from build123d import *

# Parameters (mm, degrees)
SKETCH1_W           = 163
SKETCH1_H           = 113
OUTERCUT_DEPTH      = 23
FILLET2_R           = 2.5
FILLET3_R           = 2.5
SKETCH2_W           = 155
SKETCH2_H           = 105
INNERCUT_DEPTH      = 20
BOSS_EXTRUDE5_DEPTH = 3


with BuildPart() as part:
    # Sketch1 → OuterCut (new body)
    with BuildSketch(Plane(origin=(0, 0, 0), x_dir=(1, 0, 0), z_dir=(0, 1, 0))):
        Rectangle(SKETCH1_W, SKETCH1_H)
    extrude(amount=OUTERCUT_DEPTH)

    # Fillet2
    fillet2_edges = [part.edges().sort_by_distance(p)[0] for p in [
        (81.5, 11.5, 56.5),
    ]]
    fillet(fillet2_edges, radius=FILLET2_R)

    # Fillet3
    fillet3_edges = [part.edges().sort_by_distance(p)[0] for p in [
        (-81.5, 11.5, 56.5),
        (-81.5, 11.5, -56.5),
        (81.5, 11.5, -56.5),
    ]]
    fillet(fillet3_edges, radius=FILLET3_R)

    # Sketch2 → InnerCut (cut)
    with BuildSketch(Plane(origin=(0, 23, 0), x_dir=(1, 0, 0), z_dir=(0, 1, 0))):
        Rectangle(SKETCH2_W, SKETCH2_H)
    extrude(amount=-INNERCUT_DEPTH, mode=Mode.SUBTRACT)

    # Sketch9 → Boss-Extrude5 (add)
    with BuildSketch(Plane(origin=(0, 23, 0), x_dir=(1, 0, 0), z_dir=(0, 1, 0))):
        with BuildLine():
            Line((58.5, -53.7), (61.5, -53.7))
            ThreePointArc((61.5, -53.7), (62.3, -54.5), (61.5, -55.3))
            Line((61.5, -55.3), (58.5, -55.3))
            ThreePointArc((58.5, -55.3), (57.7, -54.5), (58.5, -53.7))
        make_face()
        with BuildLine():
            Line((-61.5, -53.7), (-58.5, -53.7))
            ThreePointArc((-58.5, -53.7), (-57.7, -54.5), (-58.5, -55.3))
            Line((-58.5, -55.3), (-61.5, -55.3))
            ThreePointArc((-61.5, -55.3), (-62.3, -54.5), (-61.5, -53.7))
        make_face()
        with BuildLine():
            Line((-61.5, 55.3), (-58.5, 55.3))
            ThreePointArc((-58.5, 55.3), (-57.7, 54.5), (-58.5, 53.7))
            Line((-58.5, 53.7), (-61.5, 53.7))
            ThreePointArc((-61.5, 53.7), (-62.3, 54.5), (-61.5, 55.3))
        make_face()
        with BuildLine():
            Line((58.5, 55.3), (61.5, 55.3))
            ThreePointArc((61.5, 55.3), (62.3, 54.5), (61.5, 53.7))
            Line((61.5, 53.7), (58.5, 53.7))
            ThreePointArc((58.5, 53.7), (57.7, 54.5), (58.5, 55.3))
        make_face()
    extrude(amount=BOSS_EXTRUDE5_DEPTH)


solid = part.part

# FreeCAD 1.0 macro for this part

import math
import FreeCAD as App
import Part
import Sketcher

V = App.Vector


def edges_at(feature, points):
    """Names of the edges that pass closest to the given points."""
    edges = feature.Shape.Edges
    near = lambda p: min(range(len(edges)), key=lambda i: edges[i].distToShape(Part.Vertex(*p))[0])
    return sorted({f"Edge{near(p) + 1}" for p in points})


def add_polygon(sketch, points):
    """Adds a closed chain of lines whose ends are joined by coincident constraints."""
    first, n = sketch.GeometryCount, len(points)
    for a, b in zip(points, points[1:] + points[:1]):
        sketch.addGeometry(Part.LineSegment(App.Vector(*a, 0), App.Vector(*b, 0)), False)
    for i in range(n):
        sketch.addConstraint(Sketcher.Constraint("Coincident", first + i, 2, first + (i + 1) % n, 1))

doc = App.newDocument("Part")
body = doc.addObject("PartDesign::Body", "Body")

# Sketch on XZ plane
sketch1 = body.newObject("Sketcher::SketchObject", "Sketch")
sketch1.AttachmentSupport = (doc.getObject("XZ_Plane"), [""])
sketch1.MapMode = "FlatFace"
add_polygon(sketch1, [(-82, -56), (-82, 56), (82, 56), (82, -56)])  # lines 0-3
sketch1.addConstraint(Sketcher.Constraint("Vertical", 0))
sketch1.addConstraint(Sketcher.Constraint("Horizontal", 1))
sketch1.addConstraint(Sketcher.Constraint("Vertical", 2))
sketch1.addConstraint(Sketcher.Constraint("Horizontal", 3))
sketch1.addConstraint(Sketcher.Constraint("Symmetric", 0, 2, 2, 2, -1, 1))
sketch1.addConstraint(Sketcher.Constraint("DistanceX", 1, 1, 1, 2, 163.0))
sketch1.addConstraint(Sketcher.Constraint("DistanceY", 0, 1, 0, 2, 113.0))
pad1 = body.newObject("PartDesign::Pad", "Pad")
pad1.Profile = sketch1
pad1.Length = 23
pad1.Reversed = True
doc.recompute()

fillet = body.newObject("PartDesign::Fillet", "Fillet")
fillet.Base = (pad1, edges_at(pad1, [(81.5, 11.5, 56.5)]))
fillet.Radius = 2.5
doc.recompute()

fillet2 = body.newObject("PartDesign::Fillet", "Fillet001")
fillet2.Base = (fillet, edges_at(fillet, [(-81.5, 11.5, 56.5), (-81.5, 11.5, -56.5), (81.5, 11.5, -56.5)]))
fillet2.Radius = 2.5

# Sketch on XZ plane
sketch2 = body.newObject("Sketcher::SketchObject", "Sketch001")
sketch2.AttachmentSupport = (doc.getObject("XZ_Plane"), [""])
sketch2.MapMode = "FlatFace"
sketch2.AttachmentOffset = App.Placement(V(0, 0, -23), App.Rotation())
add_polygon(sketch2, [(-78, -52), (-78, 52), (78, 52), (78, -52)])  # lines 0-3
sketch2.addConstraint(Sketcher.Constraint("Vertical", 0))
sketch2.addConstraint(Sketcher.Constraint("Horizontal", 1))
sketch2.addConstraint(Sketcher.Constraint("Vertical", 2))
sketch2.addConstraint(Sketcher.Constraint("Horizontal", 3))
sketch2.addConstraint(Sketcher.Constraint("Symmetric", 0, 2, 2, 2, -1, 1))
sketch2.addConstraint(Sketcher.Constraint("DistanceX", 1, 1, 1, 2, 155.0))
sketch2.addConstraint(Sketcher.Constraint("DistanceY", 0, 1, 0, 2, 105.0))
pocket1 = body.newObject("PartDesign::Pocket", "Pocket")
pocket1.Profile = sketch2
pocket1.Length = 20
pocket1.Reversed = True

# Sketch on XZ plane
sketch3 = body.newObject("Sketcher::SketchObject", "Sketch002")
sketch3.AttachmentSupport = (doc.getObject("XZ_Plane"), [""])
sketch3.MapMode = "FlatFace"
sketch3.AttachmentOffset = App.Placement(V(0, 0, -23), App.Rotation())
sketch3.addGeometry(Part.LineSegment(V(61.5, 53.7, 0), V(58.5, 53.7, 0)), False)
sketch3.addGeometry(Part.ArcOfCircle(Part.Circle(V(58.5, 54.5, 0), V(0, 0, 1), 0.8), math.radians(90), math.radians(270)), False)
sketch3.addGeometry(Part.LineSegment(V(58.5, 55.3, 0), V(61.5, 55.3, 0)), False)
sketch3.addGeometry(Part.ArcOfCircle(Part.Circle(V(61.5, 54.5, 0), V(0, 0, 1), 0.8), math.radians(-90), math.radians(90)), False)
sketch3.addGeometry(Part.LineSegment(V(-58.5, 53.7, 0), V(-61.5, 53.7, 0)), False)
sketch3.addGeometry(Part.ArcOfCircle(Part.Circle(V(-61.5, 54.5, 0), V(0, 0, 1), 0.8), math.radians(90), math.radians(270)), False)
sketch3.addGeometry(Part.LineSegment(V(-61.5, 55.3, 0), V(-58.5, 55.3, 0)), False)
sketch3.addGeometry(Part.ArcOfCircle(Part.Circle(V(-58.5, 54.5, 0), V(0, 0, 1), 0.8), math.radians(-90), math.radians(90)), False)
sketch3.addGeometry(Part.LineSegment(V(-58.5, -55.3, 0), V(-61.5, -55.3, 0)), False)
sketch3.addGeometry(Part.ArcOfCircle(Part.Circle(V(-61.5, -54.5, 0), V(0, 0, 1), 0.8), math.radians(90), math.radians(270)), False)
sketch3.addGeometry(Part.LineSegment(V(-61.5, -53.7, 0), V(-58.5, -53.7, 0)), False)
sketch3.addGeometry(Part.ArcOfCircle(Part.Circle(V(-58.5, -54.5, 0), V(0, 0, 1), 0.8), math.radians(-90), math.radians(90)), False)
sketch3.addGeometry(Part.LineSegment(V(61.5, -55.3, 0), V(58.5, -55.3, 0)), False)
sketch3.addGeometry(Part.ArcOfCircle(Part.Circle(V(58.5, -54.5, 0), V(0, 0, 1), 0.8), math.radians(90), math.radians(270)), False)
sketch3.addGeometry(Part.LineSegment(V(58.5, -53.7, 0), V(61.5, -53.7, 0)), False)
sketch3.addGeometry(Part.ArcOfCircle(Part.Circle(V(61.5, -54.5, 0), V(0, 0, 1), 0.8), math.radians(-90), math.radians(90)), False)
sketch3.addConstraint(Sketcher.Constraint("Tangent", 0, 2, 1, 2))
sketch3.addConstraint(Sketcher.Constraint("Tangent", 1, 1, 2, 1))
sketch3.addConstraint(Sketcher.Constraint("Tangent", 2, 2, 3, 2))
sketch3.addConstraint(Sketcher.Constraint("Tangent", 3, 1, 0, 1))
sketch3.addConstraint(Sketcher.Constraint("Tangent", 4, 2, 5, 2))
sketch3.addConstraint(Sketcher.Constraint("Tangent", 5, 1, 6, 1))
sketch3.addConstraint(Sketcher.Constraint("Tangent", 6, 2, 7, 2))
sketch3.addConstraint(Sketcher.Constraint("Tangent", 7, 1, 4, 1))
sketch3.addConstraint(Sketcher.Constraint("Tangent", 8, 2, 9, 2))
sketch3.addConstraint(Sketcher.Constraint("Tangent", 9, 1, 10, 1))
sketch3.addConstraint(Sketcher.Constraint("Tangent", 10, 2, 11, 2))
sketch3.addConstraint(Sketcher.Constraint("Tangent", 11, 1, 8, 1))
sketch3.addConstraint(Sketcher.Constraint("Tangent", 12, 2, 13, 2))
sketch3.addConstraint(Sketcher.Constraint("Tangent", 13, 1, 14, 1))
sketch3.addConstraint(Sketcher.Constraint("Tangent", 14, 2, 15, 2))
sketch3.addConstraint(Sketcher.Constraint("Tangent", 15, 1, 12, 1))
sketch3.addConstraint(Sketcher.Constraint("Horizontal", 0))
sketch3.addConstraint(Sketcher.Constraint("Horizontal", 2))
sketch3.addConstraint(Sketcher.Constraint("Horizontal", 4))
sketch3.addConstraint(Sketcher.Constraint("Horizontal", 6))
sketch3.addConstraint(Sketcher.Constraint("Horizontal", 8))
sketch3.addConstraint(Sketcher.Constraint("Horizontal", 10))
sketch3.addConstraint(Sketcher.Constraint("Horizontal", 12))
sketch3.addConstraint(Sketcher.Constraint("Horizontal", 14))
sketch3.addConstraint(Sketcher.Constraint("Equal", 3, 5))
sketch3.addConstraint(Sketcher.Constraint("Equal", 7, 9))
sketch3.addConstraint(Sketcher.Constraint("Equal", 11, 13))
sketch3.addConstraint(Sketcher.Constraint("Symmetric", 3, 3, 9, 3, -1, 1))
sketch3.addConstraint(Sketcher.Constraint("Symmetric", 7, 3, 13, 3, -1, 1))
sketch3.addConstraint(Sketcher.Constraint("Symmetric", 3, 3, 5, 3, -2))
sketch3.addConstraint(Sketcher.Constraint("Vertical", 7, 3, 11, 3))
sketch3.addConstraint(Sketcher.Constraint("Vertical", 1, 3, 13, 3))
sketch3.addConstraint(Sketcher.Constraint("Vertical", 3, 3, 15, 3))
sketch3.addConstraint(Sketcher.Constraint("Radius", 1, 0.8))
sketch3.addConstraint(Sketcher.Constraint("DistanceX", 0, 2, 0, 1, 3.0))
sketch3.addConstraint(Sketcher.Constraint("DistanceX", 5, 3, 1, 3, 120.0))
sketch3.addConstraint(Sketcher.Constraint("DistanceY", 9, 3, 5, 3, 109.0))
pad2 = body.newObject("PartDesign::Pad", "Pad001")
pad2.Profile = sketch3
pad2.Length = 3
pad2.Reversed = True

doc.recompute()
